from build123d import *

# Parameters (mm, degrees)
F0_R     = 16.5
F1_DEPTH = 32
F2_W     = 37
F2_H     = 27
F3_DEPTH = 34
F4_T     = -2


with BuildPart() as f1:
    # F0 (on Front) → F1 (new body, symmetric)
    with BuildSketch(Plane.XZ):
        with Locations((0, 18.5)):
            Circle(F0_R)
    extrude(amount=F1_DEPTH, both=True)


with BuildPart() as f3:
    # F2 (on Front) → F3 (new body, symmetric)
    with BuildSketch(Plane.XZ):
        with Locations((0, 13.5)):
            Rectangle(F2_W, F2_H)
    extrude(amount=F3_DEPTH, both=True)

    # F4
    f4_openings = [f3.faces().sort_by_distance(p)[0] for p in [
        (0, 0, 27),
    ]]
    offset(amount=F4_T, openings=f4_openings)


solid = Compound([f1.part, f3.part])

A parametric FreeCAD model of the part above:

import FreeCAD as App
import Part
import Sketcher
from FreeCAD import Vector


def faces_at(feature, points):
    """Names of the faces that lie closest to the given points."""
    faces = feature.Shape.Faces
    near = lambda p: min(range(len(faces)), key=lambda i: faces[i].distToShape(Part.Vertex(*p))[0])
    return sorted({f"Face{near(p) + 1}" for p in points})

doc = App.newDocument("Part")
body = doc.addObject("PartDesign::Body", "Body")

sketch1 = body.newObject("Sketcher::SketchObject", "Sketch")
sketch1.AttachmentSupport = (doc.getObject("XZ_Plane"), [""])
sketch1.MapMode = "FlatFace"
sketch1.addGeometry(Part.Circle(Vector(0, 18, 0), Vector(0, 0, 1), 16), False)
sketch1.addConstraint(Sketcher.Constraint("PointOnObject", 0, 3, -2))
sketch1.addConstraint(Sketcher.Constraint("Diameter", 0, 33.0))
sketch1.addConstraint(Sketcher.Constraint("DistanceY", -1, 1, 0, 3, 18.5))
pad1 = body.newObject("PartDesign::Pad", "Pad")
pad1.Profile = sketch1
pad1.Length = 64
pad1.Midplane = True
body2 = doc.addObject("PartDesign::Body", "Body001")

sketch2 = body2.newObject("Sketcher::SketchObject", "Sketch001")
sketch2.AttachmentSupport = (doc.getObject("XZ_Plane001"), [""])
sketch2.MapMode = "FlatFace"
sketch2.addGeometry(Part.LineSegment(Vector(-18, 27, 0), Vector(-18, 0, 0)), False)
sketch2.addGeometry(Part.LineSegment(Vector(-18, 0, 0), Vector(18, 0, 0)), False)
sketch2.addGeometry(Part.LineSegment(Vector(18, 0, 0), Vector(18, 27, 0)), False)
sketch2.addGeometry(Part.LineSegment(Vector(18, 27, 0), Vector(-18, 27, 0)), False)
sketch2.addConstraint(Sketcher.Constraint("Coincident", 0, 2, 1, 1))
sketch2.addConstraint(Sketcher.Constraint("Coincident", 1, 2, 2, 1))
sketch2.addConstraint(Sketcher.Constraint("Coincident", 2, 2, 3, 1))
sketch2.addConstraint(Sketcher.Constraint("Coincident", 3, 2, 0, 1))
sketch2.addConstraint(Sketcher.Constraint("Vertical", 0))
sketch2.addConstraint(Sketcher.Constraint("Horizontal", 1))
sketch2.addConstraint(Sketcher.Constraint("Vertical", 2))
sketch2.addConstraint(Sketcher.Constraint("Horizontal", 3))
sketch2.addConstraint(Sketcher.Constraint("Symmetric", 0, 2, 1, 2, -1, 1))
sketch2.addConstraint(Sketcher.Constraint("DistanceX", 1, 1, 1, 2, 37.0))
sketch2.addConstraint(Sketcher.Constraint("DistanceY", 0, 2, 0, 1, 27.0))
pad2 = body2.newObject("PartDesign::Pad", "Pad001")
pad2.Profile = sketch2
pad2.Length = 68
pad2.Midplane = True
doc.recompute()

thickness = body2.newObject("PartDesign::Thickness", "Thickness")
thickness.Base = (pad2, faces_at(pad2, [(0, 0, 27)]))
thickness.Value = 2
thickness.Reversed = True
thickness.Join = "Arc"

doc.recompute()
